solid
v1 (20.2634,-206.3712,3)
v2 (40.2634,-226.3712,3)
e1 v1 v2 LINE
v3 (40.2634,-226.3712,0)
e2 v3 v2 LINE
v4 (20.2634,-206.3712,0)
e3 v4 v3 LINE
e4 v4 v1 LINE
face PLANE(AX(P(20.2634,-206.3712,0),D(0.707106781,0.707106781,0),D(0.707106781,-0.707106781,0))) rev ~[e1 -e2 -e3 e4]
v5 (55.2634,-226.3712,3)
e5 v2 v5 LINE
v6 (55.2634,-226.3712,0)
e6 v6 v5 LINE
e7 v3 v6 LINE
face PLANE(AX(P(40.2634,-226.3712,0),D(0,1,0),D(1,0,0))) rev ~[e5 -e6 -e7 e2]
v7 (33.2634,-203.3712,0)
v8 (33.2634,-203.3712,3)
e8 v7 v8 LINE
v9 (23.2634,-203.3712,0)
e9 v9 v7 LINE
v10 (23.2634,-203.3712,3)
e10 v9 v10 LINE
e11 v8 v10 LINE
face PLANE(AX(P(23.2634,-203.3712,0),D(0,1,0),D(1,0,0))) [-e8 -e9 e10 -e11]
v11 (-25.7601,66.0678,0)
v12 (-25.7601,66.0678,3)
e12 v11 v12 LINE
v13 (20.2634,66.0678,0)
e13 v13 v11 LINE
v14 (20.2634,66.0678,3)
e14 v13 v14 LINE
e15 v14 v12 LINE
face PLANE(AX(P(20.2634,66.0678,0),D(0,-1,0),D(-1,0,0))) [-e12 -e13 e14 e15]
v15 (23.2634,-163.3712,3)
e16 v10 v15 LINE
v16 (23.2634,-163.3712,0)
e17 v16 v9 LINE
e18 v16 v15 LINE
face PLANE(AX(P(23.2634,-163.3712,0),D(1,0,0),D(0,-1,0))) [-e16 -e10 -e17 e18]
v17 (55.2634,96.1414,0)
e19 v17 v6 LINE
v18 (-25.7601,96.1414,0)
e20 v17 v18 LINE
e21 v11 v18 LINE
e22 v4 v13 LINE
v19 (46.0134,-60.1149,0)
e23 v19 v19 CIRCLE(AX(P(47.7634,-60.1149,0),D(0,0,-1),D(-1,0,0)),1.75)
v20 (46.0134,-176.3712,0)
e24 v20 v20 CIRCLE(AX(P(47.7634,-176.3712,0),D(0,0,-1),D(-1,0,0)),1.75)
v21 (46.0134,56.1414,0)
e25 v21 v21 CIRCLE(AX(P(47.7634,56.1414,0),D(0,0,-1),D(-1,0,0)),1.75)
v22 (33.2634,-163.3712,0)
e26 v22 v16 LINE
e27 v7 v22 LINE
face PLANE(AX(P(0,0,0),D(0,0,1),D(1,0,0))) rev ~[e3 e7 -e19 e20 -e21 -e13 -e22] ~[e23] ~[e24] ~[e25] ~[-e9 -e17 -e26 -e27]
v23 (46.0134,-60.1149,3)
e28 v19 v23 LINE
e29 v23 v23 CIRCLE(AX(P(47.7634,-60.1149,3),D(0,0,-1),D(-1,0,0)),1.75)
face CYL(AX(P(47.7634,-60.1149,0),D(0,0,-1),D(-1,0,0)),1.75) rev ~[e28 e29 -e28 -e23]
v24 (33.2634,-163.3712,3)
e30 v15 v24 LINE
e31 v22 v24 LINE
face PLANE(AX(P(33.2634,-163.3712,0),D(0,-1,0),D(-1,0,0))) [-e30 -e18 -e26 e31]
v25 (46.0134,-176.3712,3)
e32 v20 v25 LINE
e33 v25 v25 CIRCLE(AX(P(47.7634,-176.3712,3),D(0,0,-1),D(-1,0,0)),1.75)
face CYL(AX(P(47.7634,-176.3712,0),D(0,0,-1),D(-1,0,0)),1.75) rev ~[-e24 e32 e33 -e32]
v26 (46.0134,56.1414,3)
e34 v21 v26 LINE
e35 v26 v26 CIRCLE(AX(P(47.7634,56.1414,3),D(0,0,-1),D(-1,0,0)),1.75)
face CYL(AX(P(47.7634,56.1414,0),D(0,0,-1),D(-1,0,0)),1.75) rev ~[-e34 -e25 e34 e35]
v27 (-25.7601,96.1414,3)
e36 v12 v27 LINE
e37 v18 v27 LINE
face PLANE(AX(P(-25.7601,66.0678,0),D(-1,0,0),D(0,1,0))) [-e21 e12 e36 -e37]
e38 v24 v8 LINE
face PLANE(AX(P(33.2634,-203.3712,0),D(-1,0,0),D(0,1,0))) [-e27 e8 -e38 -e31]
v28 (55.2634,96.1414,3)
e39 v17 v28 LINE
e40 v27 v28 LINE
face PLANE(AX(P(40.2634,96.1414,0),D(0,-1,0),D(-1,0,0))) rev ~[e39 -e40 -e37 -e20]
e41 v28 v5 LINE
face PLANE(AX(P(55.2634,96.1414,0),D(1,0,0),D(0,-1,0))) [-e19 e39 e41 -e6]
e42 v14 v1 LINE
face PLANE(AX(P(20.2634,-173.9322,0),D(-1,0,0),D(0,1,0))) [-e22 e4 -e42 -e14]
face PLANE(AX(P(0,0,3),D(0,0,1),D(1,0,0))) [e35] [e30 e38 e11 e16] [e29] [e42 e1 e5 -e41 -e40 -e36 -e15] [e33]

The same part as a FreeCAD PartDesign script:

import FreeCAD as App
import Part
import Sketcher
Q = App.Units.Quantity


def add_polygon(sketch, points):
    """Adds a closed chain of lines whose ends are joined by coincident constraints."""
    first, n = sketch.GeometryCount, len(points)
    for a, b in zip(points, points[1:] + points[:1]):
        sketch.addGeometry(Part.LineSegment(App.Vector(*a, 0), App.Vector(*b, 0)), False)
    for i in range(n):
        sketch.addConstraint(Sketcher.Constraint("Coincident", first + i, 2, first + (i + 1) % n, 1))

doc = App.newDocument("Part")
body = doc.addObject("PartDesign::Body", "Body")

# Sketch on XY plane
sketch1 = body.newObject("Sketcher::SketchObject", "Sketch")
sketch1.AttachmentSupport = (doc.getObject("XY_Plane"), [""])
sketch1.MapMode = "FlatFace"
add_polygon(sketch1, [(55, 96), (-26, 96), (-26, 66), (20, 66), (20, -206), (40, -226), (55, -226)])  # lines 0-6
sketch1.addConstraint([
    Sketcher.Constraint("Horizontal", 0),
    Sketcher.Constraint("Vertical", 1),
    Sketcher.Constraint("Horizontal", 2),
    Sketcher.Constraint("Vertical", 3),
    Sketcher.Constraint("Horizontal", 5),
    Sketcher.Constraint("Vertical", 6),
    Sketcher.Constraint("DistanceX", 5, 1, 5, 2, 15.0),
    Sketcher.Constraint("Angle", 4, Q("-45 deg")),
    Sketcher.Constraint("DistanceX", 3, 2, 4, 2, 20.0),
    Sketcher.Constraint("DistanceY", 3, 2, 3, 1, 272.439),
    Sketcher.Constraint("DistanceX", 0, 2, -1, 1, 25.76),
    Sketcher.Constraint("DistanceX", 0, 2, 0, 1, 81.0235),
    Sketcher.Constraint("DistanceY", 1, 2, 1, 1, 30.0736),
    Sketcher.Constraint("DistanceY", -1, 1, 0, 2, 96.1414),
])
pad1 = body.newObject("PartDesign::Pad", "Pad")
pad1.Profile = sketch1
pad1.Length = 3

# Sketch on XY plane
sketch2 = body.newObject("Sketcher::SketchObject", "Sketch001")
sketch2.AttachmentSupport = (doc.getObject("XY_Plane"), [""])
sketch2.MapMode = "FlatFace"
sketch2.addGeometry(Part.Circle(App.Vector(47.8, -176.4, 0), App.Vector(0, 0, 1), 1.8), False)  # 0
sketch2.addGeometry(Part.Circle(App.Vector(47.8, -60.1, 0), App.Vector(0, 0, 1), 1.8), False)  # 1
sketch2.addGeometry(Part.Circle(App.Vector(47.8, 56.1, 0), App.Vector(0, 0, 1), 1.8), False)  # 2
add_polygon(sketch2, [(33.3, -203.4), (23.3, -203.4), (23.3, -163.4), (33.3, -163.4)])  # lines 3-6
sketch2.addConstraint([
    Sketcher.Constraint("Horizontal", 3),
    Sketcher.Constraint("Vertical", 4),
    Sketcher.Constraint("Horizontal", 5),
    Sketcher.Constraint("Vertical", 6),
    Sketcher.Constraint("Equal", 0, 1),
    Sketcher.Constraint("Equal", 1, 2),
    Sketcher.Constraint("Vertical", 0, 3, 1, 3),
    Sketcher.Constraint("Vertical", 1, 3, 2, 3),
    Sketcher.Constraint("Diameter", 0, 3.5),
    Sketcher.Constraint("DistanceX", 3, 2, 3, 1, 10.0),
    Sketcher.Constraint("DistanceY", 4, 1, 4, 2, 40.0),
    Sketcher.Constraint("DistanceY", 3, 2, 0, 3, 27.0),
    Sketcher.Constraint("DistanceY", 0, 3, 1, 3, 116.2563),
    Sketcher.Constraint("DistanceY", 1, 3, 2, 3, 116.2563),
    Sketcher.Constraint("DistanceX", 3, 2, 0, 3, 24.5),
    Sketcher.Constraint("DistanceY", 1, 3, -1, 1, 60.115),
    Sketcher.Constraint("DistanceX", -1, 1, 0, 3, 47.7634),
])
pocket1 = body.newObject("PartDesign::Pocket", "Pocket")
pocket1.Profile = sketch2
pocket1.Type = "ThroughAll"
pocket1.Reversed = True

doc.recompute()
